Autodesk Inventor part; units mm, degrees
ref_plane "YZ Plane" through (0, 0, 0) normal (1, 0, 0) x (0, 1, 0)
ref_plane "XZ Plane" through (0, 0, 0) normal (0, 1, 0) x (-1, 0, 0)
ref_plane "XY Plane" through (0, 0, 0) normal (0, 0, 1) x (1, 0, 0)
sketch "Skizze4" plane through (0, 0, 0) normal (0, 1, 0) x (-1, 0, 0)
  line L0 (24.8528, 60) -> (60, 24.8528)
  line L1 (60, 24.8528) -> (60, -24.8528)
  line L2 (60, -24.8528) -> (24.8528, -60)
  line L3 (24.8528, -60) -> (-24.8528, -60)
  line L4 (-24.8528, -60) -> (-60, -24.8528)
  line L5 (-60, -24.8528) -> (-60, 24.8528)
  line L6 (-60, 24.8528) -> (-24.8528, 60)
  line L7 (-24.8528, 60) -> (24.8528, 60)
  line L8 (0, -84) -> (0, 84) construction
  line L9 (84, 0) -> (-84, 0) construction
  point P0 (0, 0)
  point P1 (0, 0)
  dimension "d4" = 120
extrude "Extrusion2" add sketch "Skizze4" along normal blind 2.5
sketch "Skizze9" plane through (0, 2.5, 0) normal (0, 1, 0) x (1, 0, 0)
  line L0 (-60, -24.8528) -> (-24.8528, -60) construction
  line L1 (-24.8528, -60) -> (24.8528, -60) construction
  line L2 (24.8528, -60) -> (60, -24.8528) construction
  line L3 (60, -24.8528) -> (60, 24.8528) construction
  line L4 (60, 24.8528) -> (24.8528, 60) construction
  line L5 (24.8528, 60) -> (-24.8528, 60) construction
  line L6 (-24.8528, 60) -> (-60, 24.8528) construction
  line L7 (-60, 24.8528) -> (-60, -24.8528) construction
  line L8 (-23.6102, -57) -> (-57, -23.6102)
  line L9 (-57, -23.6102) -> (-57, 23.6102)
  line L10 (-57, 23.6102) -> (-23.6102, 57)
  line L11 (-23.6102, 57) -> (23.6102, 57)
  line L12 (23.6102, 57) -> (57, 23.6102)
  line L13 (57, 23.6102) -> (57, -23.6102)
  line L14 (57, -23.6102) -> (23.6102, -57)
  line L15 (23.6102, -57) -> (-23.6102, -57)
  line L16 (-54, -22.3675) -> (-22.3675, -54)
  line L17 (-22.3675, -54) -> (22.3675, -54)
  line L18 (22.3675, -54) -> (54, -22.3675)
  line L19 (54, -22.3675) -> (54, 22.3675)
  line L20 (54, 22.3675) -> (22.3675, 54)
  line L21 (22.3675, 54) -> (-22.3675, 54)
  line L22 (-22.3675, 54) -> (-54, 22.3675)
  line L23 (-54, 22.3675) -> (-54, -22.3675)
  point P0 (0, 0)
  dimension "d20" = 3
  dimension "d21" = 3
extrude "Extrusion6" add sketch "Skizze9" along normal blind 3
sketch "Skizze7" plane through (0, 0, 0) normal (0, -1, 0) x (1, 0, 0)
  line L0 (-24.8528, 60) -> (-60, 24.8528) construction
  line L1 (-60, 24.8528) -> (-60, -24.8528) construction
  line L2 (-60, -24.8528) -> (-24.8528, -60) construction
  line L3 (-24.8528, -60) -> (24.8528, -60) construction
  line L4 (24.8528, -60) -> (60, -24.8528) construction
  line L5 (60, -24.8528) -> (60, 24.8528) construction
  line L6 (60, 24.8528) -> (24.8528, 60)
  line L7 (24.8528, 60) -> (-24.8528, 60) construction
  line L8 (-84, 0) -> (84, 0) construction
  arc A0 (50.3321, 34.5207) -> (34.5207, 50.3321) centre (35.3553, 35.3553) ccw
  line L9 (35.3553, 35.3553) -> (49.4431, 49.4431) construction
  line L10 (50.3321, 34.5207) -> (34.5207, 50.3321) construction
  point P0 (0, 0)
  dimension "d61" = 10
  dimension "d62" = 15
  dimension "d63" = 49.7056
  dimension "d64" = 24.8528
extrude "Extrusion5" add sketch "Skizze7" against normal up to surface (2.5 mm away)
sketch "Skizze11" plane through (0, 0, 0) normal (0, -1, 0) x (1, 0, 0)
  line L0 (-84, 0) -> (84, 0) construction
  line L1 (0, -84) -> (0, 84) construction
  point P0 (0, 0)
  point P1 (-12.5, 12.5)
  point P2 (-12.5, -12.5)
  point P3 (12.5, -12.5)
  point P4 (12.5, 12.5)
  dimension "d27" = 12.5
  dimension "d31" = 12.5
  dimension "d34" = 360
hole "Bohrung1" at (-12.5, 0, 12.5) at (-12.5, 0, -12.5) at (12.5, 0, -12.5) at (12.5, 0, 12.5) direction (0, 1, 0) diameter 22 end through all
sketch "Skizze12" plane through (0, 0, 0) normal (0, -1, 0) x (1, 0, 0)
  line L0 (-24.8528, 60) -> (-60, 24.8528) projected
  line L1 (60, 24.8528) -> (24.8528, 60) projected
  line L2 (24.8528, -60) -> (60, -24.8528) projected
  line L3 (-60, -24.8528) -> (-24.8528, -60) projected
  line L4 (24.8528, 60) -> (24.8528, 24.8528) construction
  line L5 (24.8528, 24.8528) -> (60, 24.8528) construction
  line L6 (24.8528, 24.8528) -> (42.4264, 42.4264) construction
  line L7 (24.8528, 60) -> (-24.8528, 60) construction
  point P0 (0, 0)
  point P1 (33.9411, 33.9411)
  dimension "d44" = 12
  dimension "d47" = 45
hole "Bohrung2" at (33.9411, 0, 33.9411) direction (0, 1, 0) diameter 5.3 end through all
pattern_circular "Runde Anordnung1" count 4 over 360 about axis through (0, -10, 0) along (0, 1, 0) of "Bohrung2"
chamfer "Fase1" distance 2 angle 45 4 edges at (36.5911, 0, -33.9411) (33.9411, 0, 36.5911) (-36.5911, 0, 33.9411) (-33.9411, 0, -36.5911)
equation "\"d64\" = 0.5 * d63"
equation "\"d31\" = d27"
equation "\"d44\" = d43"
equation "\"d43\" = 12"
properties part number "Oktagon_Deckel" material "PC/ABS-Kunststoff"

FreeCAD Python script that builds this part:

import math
import FreeCAD as App
import Part
import Sketcher
Q = App.Units.Quantity


def edges_at(feature, points):
    """Names of the edges that pass closest to the given points."""
    edges = feature.Shape.Edges
    near = lambda p: min(range(len(edges)), key=lambda i: edges[i].distToShape(Part.Vertex(*p))[0])
    return sorted({f"Edge{near(p) + 1}" for p in points})

doc = App.newDocument("Part")
body = doc.addObject("PartDesign::Body", "Body")

sketch1 = doc.addObject("Sketcher::SketchObject", "Sketch")
body.addObject(sketch1)
sketch1.AttachmentSupport = (doc.XZ_Plane, [""])
sketch1.MapMode = "FlatFace"
sketch1.addGeometry(Part.LineSegment(App.Vector(-60, 25, 0), App.Vector(-25, 60, 0)), False)
sketch1.addGeometry(Part.LineSegment(App.Vector(-25, 60, 0), App.Vector(25, 60, 0)), False)
sketch1.addGeometry(Part.LineSegment(App.Vector(25, 60, 0), App.Vector(60, 25, 0)), False)
sketch1.addGeometry(Part.LineSegment(App.Vector(60, 25, 0), App.Vector(60, -25, 0)), False)
sketch1.addGeometry(Part.LineSegment(App.Vector(60, -25, 0), App.Vector(25, -60, 0)), False)
sketch1.addGeometry(Part.LineSegment(App.Vector(25, -60, 0), App.Vector(-25, -60, 0)), False)
sketch1.addGeometry(Part.LineSegment(App.Vector(-25, -60, 0), App.Vector(-60, -25, 0)), False)
sketch1.addGeometry(Part.LineSegment(App.Vector(-60, -25, 0), App.Vector(-60, 25, 0)), False)
sketch1.addConstraint(Sketcher.Constraint("Coincident", 0, 2, 1, 1))
sketch1.addConstraint(Sketcher.Constraint("Coincident", 1, 2, 2, 1))
sketch1.addConstraint(Sketcher.Constraint("Coincident", 2, 2, 3, 1))
sketch1.addConstraint(Sketcher.Constraint("Coincident", 3, 2, 4, 1))
sketch1.addConstraint(Sketcher.Constraint("Coincident", 4, 2, 5, 1))
sketch1.addConstraint(Sketcher.Constraint("Coincident", 5, 2, 6, 1))
sketch1.addConstraint(Sketcher.Constraint("Coincident", 6, 2, 7, 1))
sketch1.addConstraint(Sketcher.Constraint("Coincident", 7, 2, 0, 1))
sketch1.addConstraint(Sketcher.Constraint("Horizontal", 1))
sketch1.addConstraint(Sketcher.Constraint("Vertical", 3))
sketch1.addConstraint(Sketcher.Constraint("Horizontal", 5))
sketch1.addConstraint(Sketcher.Constraint("Vertical", 7))
sketch1.addConstraint(Sketcher.Constraint("Symmetric", 0, 2, 4, 2, -1, 1))
sketch1.addConstraint(Sketcher.Constraint("Symmetric", 2, 2, 6, 2, -1, 1))
sketch1.addConstraint(Sketcher.Constraint("Perpendicular", 0, 2))
sketch1.addConstraint(Sketcher.Constraint("Perpendicular", 2, 4))
sketch1.addConstraint(Sketcher.Constraint("Perpendicular", 4, 6))
sketch1.addConstraint(Sketcher.Constraint("Horizontal", 3, 2, 6, 2))
sketch1.addConstraint(Sketcher.Constraint("Vertical", 1, 2, 4, 2))
sketch1.addConstraint(Sketcher.Constraint("Equal", 5, 3))
sketch1.addConstraint(Sketcher.Constraint("DistanceY", 4, 2, 1, 2, Q("120 mm")))
sketch1.addConstraint(Sketcher.Constraint("DistanceX", 1, 1, 1, 2, Q("49.7056 mm")))
pad1 = doc.addObject("PartDesign::Pad", "Pad")
body.addObject(pad1)
pad1.Profile = sketch1
pad1.Length = 2.5
pad1.Reversed = True

sketch2 = doc.addObject("Sketcher::SketchObject", "Sketch001")
body.addObject(sketch2)
sketch2.AttachmentSupport = (doc.XZ_Plane, [""])
sketch2.MapMode = "FlatFace"
sketch2.AttachmentOffset = App.Placement(App.Vector(0, 0, -2.5), App.Rotation())
sketch2.addGeometry(Part.LineSegment(App.Vector(-57, 24, 0), App.Vector(-24, 57, 0)), False)
sketch2.addGeometry(Part.LineSegment(App.Vector(-24, 57, 0), App.Vector(24, 57, 0)), False)
sketch2.addGeometry(Part.LineSegment(App.Vector(24, 57, 0), App.Vector(57, 24, 0)), False)
sketch2.addGeometry(Part.LineSegment(App.Vector(57, 24, 0), App.Vector(57, -24, 0)), False)
sketch2.addGeometry(Part.LineSegment(App.Vector(57, -24, 0), App.Vector(24, -57, 0)), False)
sketch2.addGeometry(Part.LineSegment(App.Vector(24, -57, 0), App.Vector(-24, -57, 0)), False)
sketch2.addGeometry(Part.LineSegment(App.Vector(-24, -57, 0), App.Vector(-57, -24, 0)), False)
sketch2.addGeometry(Part.LineSegment(App.Vector(-57, -24, 0), App.Vector(-57, 24, 0)), False)
sketch2.addGeometry(Part.LineSegment(App.Vector(-22, 54, 0), App.Vector(-54, 22, 0)), False)
sketch2.addGeometry(Part.LineSegment(App.Vector(-54, 22, 0), App.Vector(-54, -22, 0)), False)
sketch2.addGeometry(Part.LineSegment(App.Vector(-54, -22, 0), App.Vector(-22, -54, 0)), False)
sketch2.addGeometry(Part.LineSegment(App.Vector(-22, -54, 0), App.Vector(22, -54, 0)), False)
sketch2.addGeometry(Part.LineSegment(App.Vector(22, -54, 0), App.Vector(54, -22, 0)), False)
sketch2.addGeometry(Part.LineSegment(App.Vector(54, -22, 0), App.Vector(54, 22, 0)), False)
sketch2.addGeometry(Part.LineSegment(App.Vector(54, 22, 0), App.Vector(22, 54, 0)), False)
sketch2.addGeometry(Part.LineSegment(App.Vector(22, 54, 0), App.Vector(-22, 54, 0)), False)
sketch2.addConstraint(Sketcher.Constraint("Coincident", 0, 2, 1, 1))
sketch2.addConstraint(Sketcher.Constraint("Coincident", 1, 2, 2, 1))
sketch2.addConstraint(Sketcher.Constraint("Coincident", 2, 2, 3, 1))
sketch2.addConstraint(Sketcher.Constraint("Coincident", 3, 2, 4, 1))
sketch2.addConstraint(Sketcher.Constraint("Coincident", 4, 2, 5, 1))
sketch2.addConstraint(Sketcher.Constraint("Coincident", 5, 2, 6, 1))
sketch2.addConstraint(Sketcher.Constraint("Coincident", 6, 2, 7, 1))
sketch2.addConstraint(Sketcher.Constraint("Coincident", 7, 2, 0, 1))
sketch2.addConstraint(Sketcher.Constraint("Coincident", 8, 2, 9, 1))
sketch2.addConstraint(Sketcher.Constraint("Coincident", 9, 2, 10, 1))
sketch2.addConstraint(Sketcher.Constraint("Coincident", 10, 2, 11, 1))
sketch2.addConstraint(Sketcher.Constraint("Coincident", 11, 2, 12, 1))
sketch2.addConstraint(Sketcher.Constraint("Coincident", 12, 2, 13, 1))
sketch2.addConstraint(Sketcher.Constraint("Coincident", 13, 2, 14, 1))
sketch2.addConstraint(Sketcher.Constraint("Coincident", 14, 2, 15, 1))
sketch2.addConstraint(Sketcher.Constraint("Coincident", 15, 2, 8, 1))
sketch2.addConstraint(Sketcher.Constraint("Horizontal", 1))
sketch2.addConstraint(Sketcher.Constraint("Vertical", 3))
sketch2.addConstraint(Sketcher.Constraint("Horizontal", 5))
sketch2.addConstraint(Sketcher.Constraint("Vertical", 7))
sketch2.addConstraint(Sketcher.Constraint("Vertical", 9))
sketch2.addConstraint(Sketcher.Constraint("Horizontal", 11))
sketch2.addConstraint(Sketcher.Constraint("Vertical", 13))
sketch2.addConstraint(Sketcher.Constraint("Horizontal", 15))
sketch2.addConstraint(Sketcher.Constraint("Symmetric", 0, 2, 4, 2, -1, 1))
sketch2.addConstraint(Sketcher.Constraint("Symmetric", 2, 2, 6, 2, -1, 1))
sketch2.addConstraint(Sketcher.Constraint("Symmetric", 8, 2, 12, 2, -1, 1))
sketch2.addConstraint(Sketcher.Constraint("Symmetric", 10, 2, 14, 2, -1, 1))
sketch2.addConstraint(Sketcher.Constraint("Perpendicular", 0, 2))
sketch2.addConstraint(Sketcher.Constraint("Perpendicular", 2, 4))
sketch2.addConstraint(Sketcher.Constraint("Perpendicular", 4, 6))
sketch2.addConstraint(Sketcher.Constraint("Perpendicular", 6, 8))
sketch2.addConstraint(Sketcher.Constraint("Perpendicular", 8, 10))
sketch2.addConstraint(Sketcher.Constraint("Perpendicular", 10, 12))
sketch2.addConstraint(Sketcher.Constraint("Perpendicular", 12, 14))
sketch2.addConstraint(Sketcher.Constraint("Horizontal", 3, 2, 6, 2))
sketch2.addConstraint(Sketcher.Constraint("Horizontal", 9, 2, 12, 2))
sketch2.addConstraint(Sketcher.Constraint("Vertical", 1, 2, 4, 2))
sketch2.addConstraint(Sketcher.Constraint("Equal", 5, 3))
sketch2.addConstraint(Sketcher.Constraint("Equal", 15, 9))
sketch2.addConstraint(Sketcher.Constraint("DistanceX", 7, 2, 8, 2, Q("3 mm")))
sketch2.addConstraint(Sketcher.Constraint("DistanceY", -1, 1, 0, 2, Q("57 mm")))
sketch2.addConstraint(Sketcher.Constraint("DistanceX", 11, 1, 11, 2, Q("44.735 mm")))
sketch2.addConstraint(Sketcher.Constraint("DistanceX", 1, 1, 1, 2, Q("47.2204 mm")))
pad2 = doc.addObject("PartDesign::Pad", "Pad001")
body.addObject(pad2)
pad2.Profile = sketch2
pad2.Length = 3
pad2.Reversed = True

sketch3 = doc.addObject("Sketcher::SketchObject", "Sketch002")
body.addObject(sketch3)
sketch3.AttachmentSupport = (doc.XZ_Plane, [""])
sketch3.MapMode = "FlatFace"
sketch3.addGeometry(Part.LineSegment(App.Vector(35, 50, 0), App.Vector(50, 35, 0)), False)
sketch3.addGeometry(Part.ArcOfCircle(Part.Circle(App.Vector(35, 35, 0), App.Vector(0, 0, 1), 15), math.radians(-3), math.radians(93)), False)
sketch3.addConstraint(Sketcher.Constraint("Coincident", 0, 1, 1, 2))
sketch3.addConstraint(Sketcher.Constraint("Coincident", 1, 1, 0, 2))
sketch3.addConstraint(Sketcher.Constraint("Radius", 1, Q("15 mm")))
sketch3.addConstraint(Sketcher.Constraint("Angle", 0, Q("-45 deg")))
sketch3.addConstraint(Sketcher.Constraint("DistanceY", -1, 1, 0, 1, Q("50.332 mm")))
sketch3.addConstraint(Sketcher.Constraint("DistanceX", -1, 1, 1, 1, Q("50.332 mm")))
sketch3.addConstraint(Sketcher.Constraint("Distance", 0, Q("22.3607 mm")))
pad3 = doc.addObject("PartDesign::Pad", "Pad002")
body.addObject(pad3)
pad3.Profile = sketch3
pad3.Length = 2.5
pad3.Reversed = True

sketch4 = doc.addObject("Sketcher::SketchObject", "Sketch003")
body.addObject(sketch4)
sketch4.AttachmentSupport = (doc.XZ_Plane, [""])
sketch4.MapMode = "FlatFace"
sketch4.addGeometry(Part.Circle(App.Vector(-12, 12, 0), App.Vector(0, 0, 1), 11), False)
sketch4.addGeometry(Part.Circle(App.Vector(-12, -12, 0), App.Vector(0, 0, 1), 11), False)
sketch4.addGeometry(Part.Circle(App.Vector(12, -12, 0), App.Vector(0, 0, 1), 11), False)
sketch4.addGeometry(Part.Circle(App.Vector(12, 12, 0), App.Vector(0, 0, 1), 11), False)
sketch4.addConstraint(Sketcher.Constraint("Equal", 0, 1))
sketch4.addConstraint(Sketcher.Constraint("Equal", 1, 2))
sketch4.addConstraint(Sketcher.Constraint("Equal", 2, 3))
sketch4.addConstraint(Sketcher.Constraint("Symmetric", 0, 3, 2, 3, -1, 1))
sketch4.addConstraint(Sketcher.Constraint("Symmetric", 1, 3, 3, 3, -1, 1))
sketch4.addConstraint(Sketcher.Constraint("Symmetric", 1, 3, 2, 3, -2))
sketch4.addConstraint(Sketcher.Constraint("Diameter", 0, Q("22 mm")))
sketch4.addConstraint(Sketcher.Constraint("DistanceY", 1, 3, 0, 3, Q("25 mm")))
sketch4.addConstraint(Sketcher.Constraint("DistanceX", 1, 3, 2, 3, Q("25 mm")))
doc.recompute()
hole = doc.addObject("PartDesign::Hole", "Hole")
body.addObject(hole)
hole.Profile = sketch4
hole.ThreadType = "None"
hole.Diameter = 22
hole.DepthType = "ThroughAll"

sketch5 = doc.addObject("Sketcher::SketchObject", "Sketch004")
body.addObject(sketch5)
sketch5.AttachmentSupport = (doc.XZ_Plane, [""])
sketch5.MapMode = "FlatFace"
sketch5.addGeometry(Part.Circle(App.Vector(33.9, 33.9, 0), App.Vector(0, 0, 1), 2.6), False)
sketch5.addConstraint(Sketcher.Constraint("Diameter", 0, Q("5.3 mm")))
sketch5.addConstraint(Sketcher.Constraint("DistanceX", -1, 1, 0, 3, Q("33.941 mm")))
sketch5.addConstraint(Sketcher.Constraint("DistanceY", -1, 1, 0, 3, Q("33.941 mm")))
doc.recompute()
hole2 = doc.addObject("PartDesign::Hole", "Hole001")
body.addObject(hole2)
hole2.Profile = sketch5
hole2.ThreadType = "None"
hole2.Diameter = 5.3
hole2.DepthType = "ThroughAll"
doc.recompute()

polarpattern = doc.addObject("PartDesign::PolarPattern", "PolarPattern")
body.addObject(polarpattern)
polarpattern.Originals = [hole2]
polarpattern.Axis = (doc.Y_Axis, [""])
polarpattern.Angle = 360
polarpattern.Occurrences = 4
body.Tip = polarpattern
doc.recompute()

chamfer = doc.addObject("PartDesign::Chamfer", "Chamfer")
body.addObject(chamfer)
chamfer.Base = (polarpattern, edges_at(polarpattern, [
    (36.591, 0, -33.941),
    (33.941, 0, 36.591),
    (-36.591, 0, 33.941),
    (-33.941, 0, -36.591),
]))
chamfer.Size = 2

doc.recompute()
